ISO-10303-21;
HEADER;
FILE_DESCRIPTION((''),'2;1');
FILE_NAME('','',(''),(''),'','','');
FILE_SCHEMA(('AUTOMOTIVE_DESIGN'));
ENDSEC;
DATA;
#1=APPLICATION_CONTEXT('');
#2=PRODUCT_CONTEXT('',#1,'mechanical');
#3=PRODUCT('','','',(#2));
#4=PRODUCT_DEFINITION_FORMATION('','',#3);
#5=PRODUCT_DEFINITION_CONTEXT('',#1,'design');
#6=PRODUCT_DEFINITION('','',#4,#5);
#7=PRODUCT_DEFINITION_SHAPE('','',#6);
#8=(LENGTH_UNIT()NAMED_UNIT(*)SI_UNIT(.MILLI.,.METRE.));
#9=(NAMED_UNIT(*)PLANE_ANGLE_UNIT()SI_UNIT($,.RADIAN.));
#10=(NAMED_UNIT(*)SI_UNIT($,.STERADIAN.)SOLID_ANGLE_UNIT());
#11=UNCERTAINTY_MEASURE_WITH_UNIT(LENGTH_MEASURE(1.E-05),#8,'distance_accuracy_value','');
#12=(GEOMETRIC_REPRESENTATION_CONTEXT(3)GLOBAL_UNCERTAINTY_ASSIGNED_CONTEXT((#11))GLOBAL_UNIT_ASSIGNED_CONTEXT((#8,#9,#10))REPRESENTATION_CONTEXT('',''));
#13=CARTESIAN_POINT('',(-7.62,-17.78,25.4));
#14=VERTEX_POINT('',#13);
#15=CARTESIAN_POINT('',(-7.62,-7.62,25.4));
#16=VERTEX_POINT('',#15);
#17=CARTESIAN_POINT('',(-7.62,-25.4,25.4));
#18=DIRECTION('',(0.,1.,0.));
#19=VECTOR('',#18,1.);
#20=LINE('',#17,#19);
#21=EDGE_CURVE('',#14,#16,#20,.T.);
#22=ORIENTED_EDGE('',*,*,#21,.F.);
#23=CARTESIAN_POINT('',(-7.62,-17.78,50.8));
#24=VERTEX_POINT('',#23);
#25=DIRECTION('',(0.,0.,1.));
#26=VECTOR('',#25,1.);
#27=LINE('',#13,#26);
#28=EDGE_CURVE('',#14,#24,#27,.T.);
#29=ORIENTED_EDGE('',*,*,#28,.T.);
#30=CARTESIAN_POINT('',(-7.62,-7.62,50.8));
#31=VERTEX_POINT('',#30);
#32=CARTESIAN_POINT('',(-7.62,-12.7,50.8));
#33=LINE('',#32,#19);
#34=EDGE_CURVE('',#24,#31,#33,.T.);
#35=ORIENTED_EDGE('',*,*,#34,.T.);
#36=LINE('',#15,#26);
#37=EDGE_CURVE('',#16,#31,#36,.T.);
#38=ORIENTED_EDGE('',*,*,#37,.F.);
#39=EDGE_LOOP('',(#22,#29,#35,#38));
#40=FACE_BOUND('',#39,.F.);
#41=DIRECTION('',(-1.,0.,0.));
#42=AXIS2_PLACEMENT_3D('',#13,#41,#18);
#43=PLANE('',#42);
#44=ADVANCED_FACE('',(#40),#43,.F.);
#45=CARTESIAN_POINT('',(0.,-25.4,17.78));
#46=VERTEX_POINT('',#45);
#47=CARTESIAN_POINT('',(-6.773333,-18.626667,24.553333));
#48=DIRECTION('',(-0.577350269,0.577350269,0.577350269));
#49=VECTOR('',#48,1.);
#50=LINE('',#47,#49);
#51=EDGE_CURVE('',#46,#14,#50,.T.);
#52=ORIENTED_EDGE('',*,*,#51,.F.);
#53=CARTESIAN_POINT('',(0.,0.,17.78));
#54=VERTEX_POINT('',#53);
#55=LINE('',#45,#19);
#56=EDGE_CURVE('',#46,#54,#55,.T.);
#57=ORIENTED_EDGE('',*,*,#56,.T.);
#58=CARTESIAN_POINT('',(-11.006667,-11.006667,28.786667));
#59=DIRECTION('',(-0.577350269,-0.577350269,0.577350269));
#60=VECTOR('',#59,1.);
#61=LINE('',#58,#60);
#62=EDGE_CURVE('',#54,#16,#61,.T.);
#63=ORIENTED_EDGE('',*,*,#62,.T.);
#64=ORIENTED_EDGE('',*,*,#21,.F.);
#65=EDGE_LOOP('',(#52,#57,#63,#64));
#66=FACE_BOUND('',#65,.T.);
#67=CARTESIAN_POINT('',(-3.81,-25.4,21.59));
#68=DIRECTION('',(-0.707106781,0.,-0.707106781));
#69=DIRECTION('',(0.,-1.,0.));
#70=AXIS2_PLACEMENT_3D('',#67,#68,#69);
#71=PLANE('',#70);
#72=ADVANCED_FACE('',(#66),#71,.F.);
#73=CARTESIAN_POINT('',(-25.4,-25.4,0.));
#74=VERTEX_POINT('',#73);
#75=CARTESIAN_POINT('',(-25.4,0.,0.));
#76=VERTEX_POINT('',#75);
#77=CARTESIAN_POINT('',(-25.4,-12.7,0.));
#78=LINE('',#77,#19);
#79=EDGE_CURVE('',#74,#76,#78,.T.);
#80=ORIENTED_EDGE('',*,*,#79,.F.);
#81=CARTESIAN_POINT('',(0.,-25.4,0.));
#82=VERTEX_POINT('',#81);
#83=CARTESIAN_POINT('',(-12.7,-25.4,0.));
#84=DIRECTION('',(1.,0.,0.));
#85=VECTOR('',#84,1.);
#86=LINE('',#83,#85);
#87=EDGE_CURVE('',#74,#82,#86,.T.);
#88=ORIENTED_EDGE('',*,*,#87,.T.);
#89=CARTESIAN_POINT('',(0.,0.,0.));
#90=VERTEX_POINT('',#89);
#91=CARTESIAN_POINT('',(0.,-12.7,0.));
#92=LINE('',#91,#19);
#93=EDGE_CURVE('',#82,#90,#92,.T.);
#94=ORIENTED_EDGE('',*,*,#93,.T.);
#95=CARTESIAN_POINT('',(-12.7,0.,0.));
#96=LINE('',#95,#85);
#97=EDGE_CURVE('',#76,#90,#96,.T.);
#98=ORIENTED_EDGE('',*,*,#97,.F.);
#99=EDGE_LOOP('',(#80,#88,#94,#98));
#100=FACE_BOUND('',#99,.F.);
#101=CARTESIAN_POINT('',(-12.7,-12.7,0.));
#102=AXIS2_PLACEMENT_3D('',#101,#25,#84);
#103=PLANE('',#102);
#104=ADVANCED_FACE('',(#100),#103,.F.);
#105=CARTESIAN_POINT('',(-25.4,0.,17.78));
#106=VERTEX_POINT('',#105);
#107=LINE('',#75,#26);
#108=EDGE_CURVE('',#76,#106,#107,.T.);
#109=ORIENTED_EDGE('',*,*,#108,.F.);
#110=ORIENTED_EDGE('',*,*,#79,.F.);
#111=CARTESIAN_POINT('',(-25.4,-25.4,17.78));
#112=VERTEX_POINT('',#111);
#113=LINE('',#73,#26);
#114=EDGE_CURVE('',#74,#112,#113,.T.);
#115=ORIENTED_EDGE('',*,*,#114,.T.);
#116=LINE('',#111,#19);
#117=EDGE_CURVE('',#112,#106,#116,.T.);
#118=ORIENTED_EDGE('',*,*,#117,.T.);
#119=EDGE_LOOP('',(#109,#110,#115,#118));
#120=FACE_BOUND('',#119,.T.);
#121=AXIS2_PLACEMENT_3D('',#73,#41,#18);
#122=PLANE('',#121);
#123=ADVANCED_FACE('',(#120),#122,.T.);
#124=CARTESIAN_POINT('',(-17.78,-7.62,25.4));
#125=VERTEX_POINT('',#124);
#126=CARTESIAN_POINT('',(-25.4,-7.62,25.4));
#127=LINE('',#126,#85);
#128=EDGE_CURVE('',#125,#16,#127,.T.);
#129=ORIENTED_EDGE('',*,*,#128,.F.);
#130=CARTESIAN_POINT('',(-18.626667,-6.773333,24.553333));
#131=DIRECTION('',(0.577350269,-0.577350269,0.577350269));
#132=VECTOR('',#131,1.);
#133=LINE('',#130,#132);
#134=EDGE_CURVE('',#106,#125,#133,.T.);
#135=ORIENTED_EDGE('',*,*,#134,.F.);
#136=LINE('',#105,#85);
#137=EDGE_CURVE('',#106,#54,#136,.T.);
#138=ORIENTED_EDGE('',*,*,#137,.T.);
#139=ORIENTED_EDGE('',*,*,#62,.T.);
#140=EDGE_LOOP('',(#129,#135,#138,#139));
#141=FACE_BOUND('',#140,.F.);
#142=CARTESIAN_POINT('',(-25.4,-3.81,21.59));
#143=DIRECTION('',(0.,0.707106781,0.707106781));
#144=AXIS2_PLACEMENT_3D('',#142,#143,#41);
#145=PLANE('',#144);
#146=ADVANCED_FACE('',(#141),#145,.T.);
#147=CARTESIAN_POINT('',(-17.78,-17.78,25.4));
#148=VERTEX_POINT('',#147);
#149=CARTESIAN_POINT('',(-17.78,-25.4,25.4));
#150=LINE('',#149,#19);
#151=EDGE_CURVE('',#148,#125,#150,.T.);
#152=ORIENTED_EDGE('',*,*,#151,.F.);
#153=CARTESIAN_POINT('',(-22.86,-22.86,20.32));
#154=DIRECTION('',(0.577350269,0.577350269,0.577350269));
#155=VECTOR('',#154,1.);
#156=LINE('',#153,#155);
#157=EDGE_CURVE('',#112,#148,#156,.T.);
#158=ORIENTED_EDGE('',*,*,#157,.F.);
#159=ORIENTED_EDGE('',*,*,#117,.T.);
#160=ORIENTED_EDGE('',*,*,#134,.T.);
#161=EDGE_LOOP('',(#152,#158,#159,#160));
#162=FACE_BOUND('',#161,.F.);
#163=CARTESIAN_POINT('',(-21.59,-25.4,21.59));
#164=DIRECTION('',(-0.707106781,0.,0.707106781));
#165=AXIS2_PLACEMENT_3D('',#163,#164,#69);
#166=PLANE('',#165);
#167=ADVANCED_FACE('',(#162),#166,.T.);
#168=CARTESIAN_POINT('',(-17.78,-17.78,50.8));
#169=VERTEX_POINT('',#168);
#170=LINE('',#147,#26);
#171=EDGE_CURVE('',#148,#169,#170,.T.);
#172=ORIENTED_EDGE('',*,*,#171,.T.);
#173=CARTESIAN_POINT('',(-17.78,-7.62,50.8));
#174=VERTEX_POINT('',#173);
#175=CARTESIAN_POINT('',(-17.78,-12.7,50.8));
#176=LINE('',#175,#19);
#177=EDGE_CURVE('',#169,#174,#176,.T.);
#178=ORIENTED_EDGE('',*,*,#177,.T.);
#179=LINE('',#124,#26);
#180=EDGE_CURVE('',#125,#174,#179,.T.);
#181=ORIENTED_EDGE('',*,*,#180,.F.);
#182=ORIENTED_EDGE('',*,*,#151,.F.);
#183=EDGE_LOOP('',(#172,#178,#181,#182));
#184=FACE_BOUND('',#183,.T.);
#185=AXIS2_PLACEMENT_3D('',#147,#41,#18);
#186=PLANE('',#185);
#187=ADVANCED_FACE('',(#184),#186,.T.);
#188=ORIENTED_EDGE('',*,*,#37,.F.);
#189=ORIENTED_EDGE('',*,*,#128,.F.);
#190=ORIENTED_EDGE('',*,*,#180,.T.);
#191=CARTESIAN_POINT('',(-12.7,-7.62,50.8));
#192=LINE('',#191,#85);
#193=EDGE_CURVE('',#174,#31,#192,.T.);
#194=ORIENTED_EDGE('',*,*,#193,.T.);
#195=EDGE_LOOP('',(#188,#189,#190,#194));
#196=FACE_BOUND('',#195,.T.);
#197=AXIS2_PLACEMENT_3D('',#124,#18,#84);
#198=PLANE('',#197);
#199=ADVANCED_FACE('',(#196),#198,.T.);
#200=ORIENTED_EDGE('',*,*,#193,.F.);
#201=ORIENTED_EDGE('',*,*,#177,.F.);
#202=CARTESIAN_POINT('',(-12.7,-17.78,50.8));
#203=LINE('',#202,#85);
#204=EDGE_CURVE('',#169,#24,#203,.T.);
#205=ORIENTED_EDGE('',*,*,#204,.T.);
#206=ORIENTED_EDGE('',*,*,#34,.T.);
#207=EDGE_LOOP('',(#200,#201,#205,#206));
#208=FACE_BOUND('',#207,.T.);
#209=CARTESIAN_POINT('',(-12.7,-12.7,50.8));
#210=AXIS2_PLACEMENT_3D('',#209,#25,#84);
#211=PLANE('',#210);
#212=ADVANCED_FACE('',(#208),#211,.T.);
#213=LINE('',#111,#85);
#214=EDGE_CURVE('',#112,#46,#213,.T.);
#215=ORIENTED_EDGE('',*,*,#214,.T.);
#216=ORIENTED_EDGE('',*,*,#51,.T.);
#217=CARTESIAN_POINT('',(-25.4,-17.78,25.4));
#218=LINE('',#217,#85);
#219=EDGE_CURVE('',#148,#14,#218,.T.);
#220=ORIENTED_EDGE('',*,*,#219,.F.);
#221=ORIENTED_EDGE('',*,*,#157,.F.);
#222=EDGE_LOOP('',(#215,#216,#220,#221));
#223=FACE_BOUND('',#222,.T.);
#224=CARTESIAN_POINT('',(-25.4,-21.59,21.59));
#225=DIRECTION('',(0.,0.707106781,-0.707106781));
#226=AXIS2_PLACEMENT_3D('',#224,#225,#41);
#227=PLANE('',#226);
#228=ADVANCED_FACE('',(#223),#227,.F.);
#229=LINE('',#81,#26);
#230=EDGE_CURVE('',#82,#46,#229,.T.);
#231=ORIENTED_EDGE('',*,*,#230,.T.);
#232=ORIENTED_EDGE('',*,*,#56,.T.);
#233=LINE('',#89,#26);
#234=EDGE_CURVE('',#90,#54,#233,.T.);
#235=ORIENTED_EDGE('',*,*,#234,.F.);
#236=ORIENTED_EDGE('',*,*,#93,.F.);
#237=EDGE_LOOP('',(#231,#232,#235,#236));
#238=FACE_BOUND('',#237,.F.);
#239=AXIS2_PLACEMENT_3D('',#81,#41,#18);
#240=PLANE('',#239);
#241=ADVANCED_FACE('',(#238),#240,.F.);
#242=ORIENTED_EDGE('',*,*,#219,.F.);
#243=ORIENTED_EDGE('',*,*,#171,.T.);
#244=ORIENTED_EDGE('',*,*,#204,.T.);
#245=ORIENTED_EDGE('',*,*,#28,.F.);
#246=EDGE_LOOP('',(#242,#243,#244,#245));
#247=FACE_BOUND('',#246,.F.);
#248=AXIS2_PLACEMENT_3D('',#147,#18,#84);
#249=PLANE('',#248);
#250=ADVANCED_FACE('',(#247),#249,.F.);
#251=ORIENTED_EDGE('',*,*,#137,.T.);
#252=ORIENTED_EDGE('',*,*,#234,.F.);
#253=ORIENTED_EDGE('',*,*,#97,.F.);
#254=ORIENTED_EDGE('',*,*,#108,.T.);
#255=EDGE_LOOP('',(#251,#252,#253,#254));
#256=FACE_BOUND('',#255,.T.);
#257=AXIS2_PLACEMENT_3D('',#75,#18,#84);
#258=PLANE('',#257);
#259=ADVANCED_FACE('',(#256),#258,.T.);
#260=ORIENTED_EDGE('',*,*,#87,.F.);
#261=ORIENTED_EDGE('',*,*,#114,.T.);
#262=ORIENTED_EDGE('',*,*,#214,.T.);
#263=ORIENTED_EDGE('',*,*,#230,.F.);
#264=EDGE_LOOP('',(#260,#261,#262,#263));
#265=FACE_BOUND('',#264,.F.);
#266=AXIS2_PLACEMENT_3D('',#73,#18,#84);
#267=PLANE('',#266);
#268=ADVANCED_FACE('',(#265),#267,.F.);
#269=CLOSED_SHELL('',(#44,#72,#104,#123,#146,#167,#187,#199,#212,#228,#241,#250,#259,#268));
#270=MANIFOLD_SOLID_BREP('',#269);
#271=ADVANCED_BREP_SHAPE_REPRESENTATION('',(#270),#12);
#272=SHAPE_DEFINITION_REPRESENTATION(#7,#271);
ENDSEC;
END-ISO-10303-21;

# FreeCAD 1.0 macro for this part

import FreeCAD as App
import Part
import Sketcher
Q = App.Units.Quantity


def edges_at(feature, points):
    """Names of the edges that pass closest to the given points."""
    edges = feature.Shape.Edges
    near = lambda p: min(range(len(edges)), key=lambda i: edges[i].distToShape(Part.Vertex(*p))[0])
    return sorted({f"Edge{near(p) + 1}" for p in points})


def add_polygon(sketch, points):
    """Adds a closed chain of lines whose ends are joined by coincident constraints."""
    first, n = sketch.GeometryCount, len(points)
    for a, b in zip(points, points[1:] + points[:1]):
        sketch.addGeometry(Part.LineSegment(App.Vector(*a, 0), App.Vector(*b, 0)), False)
    for i in range(n):
        sketch.addConstraint(Sketcher.Constraint("Coincident", first + i, 2, first + (i + 1) % n, 1))

doc = App.newDocument("Part")
body = doc.addObject("PartDesign::Body", "Body")

# Sketch on XY plane
sketch1 = body.newObject("Sketcher::SketchObject", "Sketch")
sketch1.AttachmentSupport = (doc.getObject("XY_Plane"), [""])
sketch1.MapMode = "FlatFace"
add_polygon(sketch1, [(-25.4, 0), (-25.4, -25.4), (0, -25.4), (0, 0)])  # lines 0-3
sketch1.addConstraint(Sketcher.Constraint("Vertical", 0))
sketch1.addConstraint(Sketcher.Constraint("Horizontal", 1))
sketch1.addConstraint(Sketcher.Constraint("Vertical", 2))
sketch1.addConstraint(Sketcher.Constraint("Horizontal", 3))
sketch1.addConstraint(Sketcher.Constraint("Coincident", 2, 2, -1, 1))
sketch1.addConstraint(Sketcher.Constraint("Equal", 3, 0))
sketch1.addConstraint(Sketcher.Constraint("DistanceX", 1, 1, 1, 2, Q("1 in")))
pad1 = body.newObject("PartDesign::Pad", "Pad")
pad1.Profile = sketch1
pad1.Length = Q("1 in")
doc.recompute()

chamfer = body.newObject("PartDesign::Chamfer", "Chamfer")
chamfer.Base = (pad1, edges_at(pad1, [
    (-12.7, -25.4, 25.4),
    (-25.4, -12.7, 25.4),
    (-12.7, 0, 25.4),
    (0, -12.7, 25.4),
]))
chamfer.Size = Q("0.3 in")

# Sketch on XY plane
sketch2 = body.newObject("Sketcher::SketchObject", "Sketch001")
sketch2.AttachmentSupport = (doc.getObject("XY_Plane"), [""])
sketch2.MapMode = "FlatFace"
sketch2.AttachmentOffset = App.Placement(App.Vector(0, 0, 1 * 25.4), App.Rotation())
add_polygon(sketch2, [(-17.78, -7.62), (-17.78, -17.78), (-7.62, -17.78), (-7.62, -7.62)])  # lines 0-3
sketch2.addConstraint(Sketcher.Constraint("Vertical", 0))
sketch2.addConstraint(Sketcher.Constraint("Horizontal", 1))
sketch2.addConstraint(Sketcher.Constraint("Vertical", 2))
sketch2.addConstraint(Sketcher.Constraint("Horizontal", 3))
sketch2.addConstraint(Sketcher.Constraint("Equal", 3, 0))
sketch2.addConstraint(Sketcher.Constraint("DistanceX", 1, 1, 1, 2, Q("0.4 in")))
sketch2.addConstraint(Sketcher.Constraint("DistanceX", 0, 2, -1, 1, Q("0.7 in")))
sketch2.addConstraint(Sketcher.Constraint("DistanceY", 0, 2, -1, 1, Q("0.7 in")))
pad2 = body.newObject("PartDesign::Pad", "Pad001")
pad2.Profile = sketch2
pad2.Length = Q("1 in")

doc.recompute()
